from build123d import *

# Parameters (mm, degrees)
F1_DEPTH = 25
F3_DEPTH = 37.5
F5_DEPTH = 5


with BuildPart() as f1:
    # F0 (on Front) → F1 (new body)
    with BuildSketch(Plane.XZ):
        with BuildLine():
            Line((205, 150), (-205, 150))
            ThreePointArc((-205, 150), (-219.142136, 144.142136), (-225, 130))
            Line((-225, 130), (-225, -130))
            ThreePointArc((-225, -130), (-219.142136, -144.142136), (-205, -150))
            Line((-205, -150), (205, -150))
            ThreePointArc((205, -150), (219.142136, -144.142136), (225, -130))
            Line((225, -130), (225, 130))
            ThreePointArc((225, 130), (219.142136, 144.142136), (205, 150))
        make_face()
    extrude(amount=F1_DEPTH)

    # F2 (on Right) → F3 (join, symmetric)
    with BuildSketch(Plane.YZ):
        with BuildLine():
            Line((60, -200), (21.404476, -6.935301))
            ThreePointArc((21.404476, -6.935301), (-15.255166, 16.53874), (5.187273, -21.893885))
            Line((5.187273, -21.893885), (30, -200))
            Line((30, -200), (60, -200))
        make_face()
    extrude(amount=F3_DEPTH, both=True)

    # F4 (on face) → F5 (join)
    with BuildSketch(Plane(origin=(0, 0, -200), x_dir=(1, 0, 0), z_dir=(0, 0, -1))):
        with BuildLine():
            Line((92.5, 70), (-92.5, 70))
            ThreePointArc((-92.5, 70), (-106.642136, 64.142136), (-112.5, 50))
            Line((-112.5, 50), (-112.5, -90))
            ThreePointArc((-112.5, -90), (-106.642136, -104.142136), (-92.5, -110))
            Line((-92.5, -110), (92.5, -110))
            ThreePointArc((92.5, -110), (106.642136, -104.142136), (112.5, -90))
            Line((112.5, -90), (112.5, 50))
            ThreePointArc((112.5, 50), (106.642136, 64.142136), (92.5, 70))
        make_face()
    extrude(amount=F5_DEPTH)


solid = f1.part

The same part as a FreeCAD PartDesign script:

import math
import FreeCAD as App
import Part
import Sketcher

V = App.Vector

doc = App.newDocument("Part")
body = doc.addObject("PartDesign::Body", "Body")

# Sketch on XZ plane
sketch1 = body.newObject("Sketcher::SketchObject", "Sketch")
sketch1.AttachmentSupport = (doc.getObject("XZ_Plane"), [""])
sketch1.MapMode = "FlatFace"
sketch1.addGeometry([
    Part.LineSegment(V(205, 150, 0), V(-205, 150, 0)),  # 0
    Part.ArcOfCircle(Part.Circle(V(-205, 130, 0), V(0, 0, 1), 20), math.radians(90), math.radians(180)),  # 1
    Part.LineSegment(V(-225, 130, 0), V(-225, -130, 0)),  # 2
    Part.ArcOfCircle(Part.Circle(V(-205, -130, 0), V(0, 0, 1), 20), math.radians(180), math.radians(270)),  # 3
    Part.LineSegment(V(-205, -150, 0), V(205, -150, 0)),  # 4
    Part.ArcOfCircle(Part.Circle(V(205, -130, 0), V(0, 0, 1), 20), math.radians(-90), math.radians(0)),  # 5
    Part.LineSegment(V(225, -130, 0), V(225, 130, 0)),  # 6
    Part.ArcOfCircle(Part.Circle(V(205, 130, 0), V(0, 0, 1), 20), math.radians(0), math.radians(90)),  # 7
], False)
sketch1.addConstraint([
    Sketcher.Constraint("Tangent", 0, 2, 1, 1),
    Sketcher.Constraint("Tangent", 1, 2, 2, 1),
    Sketcher.Constraint("Tangent", 2, 2, 3, 1),
    Sketcher.Constraint("Tangent", 3, 2, 4, 1),
    Sketcher.Constraint("Tangent", 4, 2, 5, 1),
    Sketcher.Constraint("Tangent", 5, 2, 6, 1),
    Sketcher.Constraint("Tangent", 6, 2, 7, 1),
    Sketcher.Constraint("Tangent", 7, 2, 0, 1),
    Sketcher.Constraint("Horizontal", 0),
    Sketcher.Constraint("Vertical", 2),
    Sketcher.Constraint("Horizontal", 4),
    Sketcher.Constraint("Vertical", 6),
    Sketcher.Constraint("Equal", 1, 3),
    Sketcher.Constraint("Equal", 3, 5),
    Sketcher.Constraint("Equal", 5, 7),
    Sketcher.Constraint("Symmetric", 1, 3, 5, 3, -1, 1),
    Sketcher.Constraint("Radius", 1, 19.999999),
    Sketcher.Constraint("DistanceX", 0, 2, 0, 1, 410.0),
    Sketcher.Constraint("DistanceY", 2, 2, 2, 1, 260.0),
])
pad1 = body.newObject("PartDesign::Pad", "Pad")
pad1.Profile = sketch1
pad1.Length = 25

# Sketch on YZ plane
sketch2 = body.newObject("Sketcher::SketchObject", "Sketch001")
sketch2.AttachmentSupport = (doc.getObject("YZ_Plane"), [""])
sketch2.MapMode = "FlatFace"
sketch2.addGeometry([
    Part.LineSegment(V(60, -200, 0), V(21, -7, 0)),
    Part.ArcOfCircle(Part.Circle(V(0, 0, 0), V(0, 0, 1), 23), math.radians(-18), math.radians(283)),
    Part.LineSegment(V(5, -22, 0), V(30, -200, 0)),
    Part.LineSegment(V(30, -200, 0), V(60, -200, 0)),
], False)
sketch2.addConstraint([
    Sketcher.Constraint("Coincident", 0, 2, 1, 1),
    Sketcher.Constraint("Coincident", 1, 2, 2, 1),
    Sketcher.Constraint("Coincident", 2, 2, 3, 1),
    Sketcher.Constraint("Coincident", 3, 2, 0, 1),
    Sketcher.Constraint("Horizontal", 3),
    Sketcher.Constraint("Coincident", 1, 3, -1, 1),
    Sketcher.Constraint("Radius", 1, 22.5),
    Sketcher.Constraint("DistanceX", 3, 1, 3, 2, 30.0),
    Sketcher.Constraint("DistanceX", -1, 1, 2, 2, 30.0),
    Sketcher.Constraint("DistanceY", 2, 2, -1, 1, 200.0),
    Sketcher.Constraint("DistanceY", 0, 2, -1, 1, 6.935301),
    Sketcher.Constraint("Distance", 2, 179.826193),
])
pad2 = body.newObject("PartDesign::Pad", "Pad001")
pad2.Profile = sketch2
pad2.Length = 75
pad2.Midplane = True

# Sketch on XY plane
sketch3 = body.newObject("Sketcher::SketchObject", "Sketch002")
sketch3.AttachmentSupport = (doc.getObject("XY_Plane"), [""])
sketch3.MapMode = "FlatFace"
sketch3.AttachmentOffset = App.Placement(V(0, 0, -200), App.Rotation())
sketch3.addGeometry([
    Part.LineSegment(V(92, -70, 0), V(-92, -70, 0)),  # 0
    Part.ArcOfCircle(Part.Circle(V(-93, -50, 0), V(0, 0, 1), 20), math.radians(180), math.radians(270)),  # 1
    Part.LineSegment(V(-112, -50, 0), V(-112, 90, 0)),  # 2
    Part.ArcOfCircle(Part.Circle(V(-93, 90, 0), V(0, 0, 1), 20), math.radians(90), math.radians(180)),  # 3
    Part.LineSegment(V(-92, 110, 0), V(92, 110, 0)),  # 4
    Part.ArcOfCircle(Part.Circle(V(93, 90, 0), V(0, 0, 1), 20), math.radians(0), math.radians(90)),  # 5
    Part.LineSegment(V(112, 90, 0), V(112, -50, 0)),  # 6
    Part.ArcOfCircle(Part.Circle(V(93, -50, 0), V(0, 0, 1), 20), math.radians(-90), math.radians(0)),  # 7
], False)
sketch3.addConstraint([
    Sketcher.Constraint("Tangent", 0, 2, 1, 2),
    Sketcher.Constraint("Tangent", 1, 1, 2, 1),
    Sketcher.Constraint("Tangent", 2, 2, 3, 2),
    Sketcher.Constraint("Tangent", 3, 1, 4, 1),
    Sketcher.Constraint("Tangent", 4, 2, 5, 2),
    Sketcher.Constraint("Tangent", 5, 1, 6, 1),
    Sketcher.Constraint("Tangent", 6, 2, 7, 2),
    Sketcher.Constraint("Tangent", 7, 1, 0, 1),
    Sketcher.Constraint("Horizontal", 0),
    Sketcher.Constraint("Vertical", 2),
    Sketcher.Constraint("Horizontal", 4),
    Sketcher.Constraint("Vertical", 6),
    Sketcher.Constraint("Equal", 1, 3),
    Sketcher.Constraint("Equal", 3, 5),
    Sketcher.Constraint("Equal", 5, 7),
    Sketcher.Constraint("Radius", 1, 19.999999),
    Sketcher.Constraint("DistanceX", 0, 2, 0, 1, 185.0),
    Sketcher.Constraint("DistanceY", 2, 1, 2, 2, 140.0),
    Sketcher.Constraint("DistanceY", 1, 3, -1, 1, 50.000001),
    Sketcher.Constraint("DistanceX", 1, 3, -1, 1, 92.500001),
])
pad3 = body.newObject("PartDesign::Pad", "Pad002")
pad3.Profile = sketch3
pad3.Length = 5
pad3.Reversed = True

doc.recompute()
